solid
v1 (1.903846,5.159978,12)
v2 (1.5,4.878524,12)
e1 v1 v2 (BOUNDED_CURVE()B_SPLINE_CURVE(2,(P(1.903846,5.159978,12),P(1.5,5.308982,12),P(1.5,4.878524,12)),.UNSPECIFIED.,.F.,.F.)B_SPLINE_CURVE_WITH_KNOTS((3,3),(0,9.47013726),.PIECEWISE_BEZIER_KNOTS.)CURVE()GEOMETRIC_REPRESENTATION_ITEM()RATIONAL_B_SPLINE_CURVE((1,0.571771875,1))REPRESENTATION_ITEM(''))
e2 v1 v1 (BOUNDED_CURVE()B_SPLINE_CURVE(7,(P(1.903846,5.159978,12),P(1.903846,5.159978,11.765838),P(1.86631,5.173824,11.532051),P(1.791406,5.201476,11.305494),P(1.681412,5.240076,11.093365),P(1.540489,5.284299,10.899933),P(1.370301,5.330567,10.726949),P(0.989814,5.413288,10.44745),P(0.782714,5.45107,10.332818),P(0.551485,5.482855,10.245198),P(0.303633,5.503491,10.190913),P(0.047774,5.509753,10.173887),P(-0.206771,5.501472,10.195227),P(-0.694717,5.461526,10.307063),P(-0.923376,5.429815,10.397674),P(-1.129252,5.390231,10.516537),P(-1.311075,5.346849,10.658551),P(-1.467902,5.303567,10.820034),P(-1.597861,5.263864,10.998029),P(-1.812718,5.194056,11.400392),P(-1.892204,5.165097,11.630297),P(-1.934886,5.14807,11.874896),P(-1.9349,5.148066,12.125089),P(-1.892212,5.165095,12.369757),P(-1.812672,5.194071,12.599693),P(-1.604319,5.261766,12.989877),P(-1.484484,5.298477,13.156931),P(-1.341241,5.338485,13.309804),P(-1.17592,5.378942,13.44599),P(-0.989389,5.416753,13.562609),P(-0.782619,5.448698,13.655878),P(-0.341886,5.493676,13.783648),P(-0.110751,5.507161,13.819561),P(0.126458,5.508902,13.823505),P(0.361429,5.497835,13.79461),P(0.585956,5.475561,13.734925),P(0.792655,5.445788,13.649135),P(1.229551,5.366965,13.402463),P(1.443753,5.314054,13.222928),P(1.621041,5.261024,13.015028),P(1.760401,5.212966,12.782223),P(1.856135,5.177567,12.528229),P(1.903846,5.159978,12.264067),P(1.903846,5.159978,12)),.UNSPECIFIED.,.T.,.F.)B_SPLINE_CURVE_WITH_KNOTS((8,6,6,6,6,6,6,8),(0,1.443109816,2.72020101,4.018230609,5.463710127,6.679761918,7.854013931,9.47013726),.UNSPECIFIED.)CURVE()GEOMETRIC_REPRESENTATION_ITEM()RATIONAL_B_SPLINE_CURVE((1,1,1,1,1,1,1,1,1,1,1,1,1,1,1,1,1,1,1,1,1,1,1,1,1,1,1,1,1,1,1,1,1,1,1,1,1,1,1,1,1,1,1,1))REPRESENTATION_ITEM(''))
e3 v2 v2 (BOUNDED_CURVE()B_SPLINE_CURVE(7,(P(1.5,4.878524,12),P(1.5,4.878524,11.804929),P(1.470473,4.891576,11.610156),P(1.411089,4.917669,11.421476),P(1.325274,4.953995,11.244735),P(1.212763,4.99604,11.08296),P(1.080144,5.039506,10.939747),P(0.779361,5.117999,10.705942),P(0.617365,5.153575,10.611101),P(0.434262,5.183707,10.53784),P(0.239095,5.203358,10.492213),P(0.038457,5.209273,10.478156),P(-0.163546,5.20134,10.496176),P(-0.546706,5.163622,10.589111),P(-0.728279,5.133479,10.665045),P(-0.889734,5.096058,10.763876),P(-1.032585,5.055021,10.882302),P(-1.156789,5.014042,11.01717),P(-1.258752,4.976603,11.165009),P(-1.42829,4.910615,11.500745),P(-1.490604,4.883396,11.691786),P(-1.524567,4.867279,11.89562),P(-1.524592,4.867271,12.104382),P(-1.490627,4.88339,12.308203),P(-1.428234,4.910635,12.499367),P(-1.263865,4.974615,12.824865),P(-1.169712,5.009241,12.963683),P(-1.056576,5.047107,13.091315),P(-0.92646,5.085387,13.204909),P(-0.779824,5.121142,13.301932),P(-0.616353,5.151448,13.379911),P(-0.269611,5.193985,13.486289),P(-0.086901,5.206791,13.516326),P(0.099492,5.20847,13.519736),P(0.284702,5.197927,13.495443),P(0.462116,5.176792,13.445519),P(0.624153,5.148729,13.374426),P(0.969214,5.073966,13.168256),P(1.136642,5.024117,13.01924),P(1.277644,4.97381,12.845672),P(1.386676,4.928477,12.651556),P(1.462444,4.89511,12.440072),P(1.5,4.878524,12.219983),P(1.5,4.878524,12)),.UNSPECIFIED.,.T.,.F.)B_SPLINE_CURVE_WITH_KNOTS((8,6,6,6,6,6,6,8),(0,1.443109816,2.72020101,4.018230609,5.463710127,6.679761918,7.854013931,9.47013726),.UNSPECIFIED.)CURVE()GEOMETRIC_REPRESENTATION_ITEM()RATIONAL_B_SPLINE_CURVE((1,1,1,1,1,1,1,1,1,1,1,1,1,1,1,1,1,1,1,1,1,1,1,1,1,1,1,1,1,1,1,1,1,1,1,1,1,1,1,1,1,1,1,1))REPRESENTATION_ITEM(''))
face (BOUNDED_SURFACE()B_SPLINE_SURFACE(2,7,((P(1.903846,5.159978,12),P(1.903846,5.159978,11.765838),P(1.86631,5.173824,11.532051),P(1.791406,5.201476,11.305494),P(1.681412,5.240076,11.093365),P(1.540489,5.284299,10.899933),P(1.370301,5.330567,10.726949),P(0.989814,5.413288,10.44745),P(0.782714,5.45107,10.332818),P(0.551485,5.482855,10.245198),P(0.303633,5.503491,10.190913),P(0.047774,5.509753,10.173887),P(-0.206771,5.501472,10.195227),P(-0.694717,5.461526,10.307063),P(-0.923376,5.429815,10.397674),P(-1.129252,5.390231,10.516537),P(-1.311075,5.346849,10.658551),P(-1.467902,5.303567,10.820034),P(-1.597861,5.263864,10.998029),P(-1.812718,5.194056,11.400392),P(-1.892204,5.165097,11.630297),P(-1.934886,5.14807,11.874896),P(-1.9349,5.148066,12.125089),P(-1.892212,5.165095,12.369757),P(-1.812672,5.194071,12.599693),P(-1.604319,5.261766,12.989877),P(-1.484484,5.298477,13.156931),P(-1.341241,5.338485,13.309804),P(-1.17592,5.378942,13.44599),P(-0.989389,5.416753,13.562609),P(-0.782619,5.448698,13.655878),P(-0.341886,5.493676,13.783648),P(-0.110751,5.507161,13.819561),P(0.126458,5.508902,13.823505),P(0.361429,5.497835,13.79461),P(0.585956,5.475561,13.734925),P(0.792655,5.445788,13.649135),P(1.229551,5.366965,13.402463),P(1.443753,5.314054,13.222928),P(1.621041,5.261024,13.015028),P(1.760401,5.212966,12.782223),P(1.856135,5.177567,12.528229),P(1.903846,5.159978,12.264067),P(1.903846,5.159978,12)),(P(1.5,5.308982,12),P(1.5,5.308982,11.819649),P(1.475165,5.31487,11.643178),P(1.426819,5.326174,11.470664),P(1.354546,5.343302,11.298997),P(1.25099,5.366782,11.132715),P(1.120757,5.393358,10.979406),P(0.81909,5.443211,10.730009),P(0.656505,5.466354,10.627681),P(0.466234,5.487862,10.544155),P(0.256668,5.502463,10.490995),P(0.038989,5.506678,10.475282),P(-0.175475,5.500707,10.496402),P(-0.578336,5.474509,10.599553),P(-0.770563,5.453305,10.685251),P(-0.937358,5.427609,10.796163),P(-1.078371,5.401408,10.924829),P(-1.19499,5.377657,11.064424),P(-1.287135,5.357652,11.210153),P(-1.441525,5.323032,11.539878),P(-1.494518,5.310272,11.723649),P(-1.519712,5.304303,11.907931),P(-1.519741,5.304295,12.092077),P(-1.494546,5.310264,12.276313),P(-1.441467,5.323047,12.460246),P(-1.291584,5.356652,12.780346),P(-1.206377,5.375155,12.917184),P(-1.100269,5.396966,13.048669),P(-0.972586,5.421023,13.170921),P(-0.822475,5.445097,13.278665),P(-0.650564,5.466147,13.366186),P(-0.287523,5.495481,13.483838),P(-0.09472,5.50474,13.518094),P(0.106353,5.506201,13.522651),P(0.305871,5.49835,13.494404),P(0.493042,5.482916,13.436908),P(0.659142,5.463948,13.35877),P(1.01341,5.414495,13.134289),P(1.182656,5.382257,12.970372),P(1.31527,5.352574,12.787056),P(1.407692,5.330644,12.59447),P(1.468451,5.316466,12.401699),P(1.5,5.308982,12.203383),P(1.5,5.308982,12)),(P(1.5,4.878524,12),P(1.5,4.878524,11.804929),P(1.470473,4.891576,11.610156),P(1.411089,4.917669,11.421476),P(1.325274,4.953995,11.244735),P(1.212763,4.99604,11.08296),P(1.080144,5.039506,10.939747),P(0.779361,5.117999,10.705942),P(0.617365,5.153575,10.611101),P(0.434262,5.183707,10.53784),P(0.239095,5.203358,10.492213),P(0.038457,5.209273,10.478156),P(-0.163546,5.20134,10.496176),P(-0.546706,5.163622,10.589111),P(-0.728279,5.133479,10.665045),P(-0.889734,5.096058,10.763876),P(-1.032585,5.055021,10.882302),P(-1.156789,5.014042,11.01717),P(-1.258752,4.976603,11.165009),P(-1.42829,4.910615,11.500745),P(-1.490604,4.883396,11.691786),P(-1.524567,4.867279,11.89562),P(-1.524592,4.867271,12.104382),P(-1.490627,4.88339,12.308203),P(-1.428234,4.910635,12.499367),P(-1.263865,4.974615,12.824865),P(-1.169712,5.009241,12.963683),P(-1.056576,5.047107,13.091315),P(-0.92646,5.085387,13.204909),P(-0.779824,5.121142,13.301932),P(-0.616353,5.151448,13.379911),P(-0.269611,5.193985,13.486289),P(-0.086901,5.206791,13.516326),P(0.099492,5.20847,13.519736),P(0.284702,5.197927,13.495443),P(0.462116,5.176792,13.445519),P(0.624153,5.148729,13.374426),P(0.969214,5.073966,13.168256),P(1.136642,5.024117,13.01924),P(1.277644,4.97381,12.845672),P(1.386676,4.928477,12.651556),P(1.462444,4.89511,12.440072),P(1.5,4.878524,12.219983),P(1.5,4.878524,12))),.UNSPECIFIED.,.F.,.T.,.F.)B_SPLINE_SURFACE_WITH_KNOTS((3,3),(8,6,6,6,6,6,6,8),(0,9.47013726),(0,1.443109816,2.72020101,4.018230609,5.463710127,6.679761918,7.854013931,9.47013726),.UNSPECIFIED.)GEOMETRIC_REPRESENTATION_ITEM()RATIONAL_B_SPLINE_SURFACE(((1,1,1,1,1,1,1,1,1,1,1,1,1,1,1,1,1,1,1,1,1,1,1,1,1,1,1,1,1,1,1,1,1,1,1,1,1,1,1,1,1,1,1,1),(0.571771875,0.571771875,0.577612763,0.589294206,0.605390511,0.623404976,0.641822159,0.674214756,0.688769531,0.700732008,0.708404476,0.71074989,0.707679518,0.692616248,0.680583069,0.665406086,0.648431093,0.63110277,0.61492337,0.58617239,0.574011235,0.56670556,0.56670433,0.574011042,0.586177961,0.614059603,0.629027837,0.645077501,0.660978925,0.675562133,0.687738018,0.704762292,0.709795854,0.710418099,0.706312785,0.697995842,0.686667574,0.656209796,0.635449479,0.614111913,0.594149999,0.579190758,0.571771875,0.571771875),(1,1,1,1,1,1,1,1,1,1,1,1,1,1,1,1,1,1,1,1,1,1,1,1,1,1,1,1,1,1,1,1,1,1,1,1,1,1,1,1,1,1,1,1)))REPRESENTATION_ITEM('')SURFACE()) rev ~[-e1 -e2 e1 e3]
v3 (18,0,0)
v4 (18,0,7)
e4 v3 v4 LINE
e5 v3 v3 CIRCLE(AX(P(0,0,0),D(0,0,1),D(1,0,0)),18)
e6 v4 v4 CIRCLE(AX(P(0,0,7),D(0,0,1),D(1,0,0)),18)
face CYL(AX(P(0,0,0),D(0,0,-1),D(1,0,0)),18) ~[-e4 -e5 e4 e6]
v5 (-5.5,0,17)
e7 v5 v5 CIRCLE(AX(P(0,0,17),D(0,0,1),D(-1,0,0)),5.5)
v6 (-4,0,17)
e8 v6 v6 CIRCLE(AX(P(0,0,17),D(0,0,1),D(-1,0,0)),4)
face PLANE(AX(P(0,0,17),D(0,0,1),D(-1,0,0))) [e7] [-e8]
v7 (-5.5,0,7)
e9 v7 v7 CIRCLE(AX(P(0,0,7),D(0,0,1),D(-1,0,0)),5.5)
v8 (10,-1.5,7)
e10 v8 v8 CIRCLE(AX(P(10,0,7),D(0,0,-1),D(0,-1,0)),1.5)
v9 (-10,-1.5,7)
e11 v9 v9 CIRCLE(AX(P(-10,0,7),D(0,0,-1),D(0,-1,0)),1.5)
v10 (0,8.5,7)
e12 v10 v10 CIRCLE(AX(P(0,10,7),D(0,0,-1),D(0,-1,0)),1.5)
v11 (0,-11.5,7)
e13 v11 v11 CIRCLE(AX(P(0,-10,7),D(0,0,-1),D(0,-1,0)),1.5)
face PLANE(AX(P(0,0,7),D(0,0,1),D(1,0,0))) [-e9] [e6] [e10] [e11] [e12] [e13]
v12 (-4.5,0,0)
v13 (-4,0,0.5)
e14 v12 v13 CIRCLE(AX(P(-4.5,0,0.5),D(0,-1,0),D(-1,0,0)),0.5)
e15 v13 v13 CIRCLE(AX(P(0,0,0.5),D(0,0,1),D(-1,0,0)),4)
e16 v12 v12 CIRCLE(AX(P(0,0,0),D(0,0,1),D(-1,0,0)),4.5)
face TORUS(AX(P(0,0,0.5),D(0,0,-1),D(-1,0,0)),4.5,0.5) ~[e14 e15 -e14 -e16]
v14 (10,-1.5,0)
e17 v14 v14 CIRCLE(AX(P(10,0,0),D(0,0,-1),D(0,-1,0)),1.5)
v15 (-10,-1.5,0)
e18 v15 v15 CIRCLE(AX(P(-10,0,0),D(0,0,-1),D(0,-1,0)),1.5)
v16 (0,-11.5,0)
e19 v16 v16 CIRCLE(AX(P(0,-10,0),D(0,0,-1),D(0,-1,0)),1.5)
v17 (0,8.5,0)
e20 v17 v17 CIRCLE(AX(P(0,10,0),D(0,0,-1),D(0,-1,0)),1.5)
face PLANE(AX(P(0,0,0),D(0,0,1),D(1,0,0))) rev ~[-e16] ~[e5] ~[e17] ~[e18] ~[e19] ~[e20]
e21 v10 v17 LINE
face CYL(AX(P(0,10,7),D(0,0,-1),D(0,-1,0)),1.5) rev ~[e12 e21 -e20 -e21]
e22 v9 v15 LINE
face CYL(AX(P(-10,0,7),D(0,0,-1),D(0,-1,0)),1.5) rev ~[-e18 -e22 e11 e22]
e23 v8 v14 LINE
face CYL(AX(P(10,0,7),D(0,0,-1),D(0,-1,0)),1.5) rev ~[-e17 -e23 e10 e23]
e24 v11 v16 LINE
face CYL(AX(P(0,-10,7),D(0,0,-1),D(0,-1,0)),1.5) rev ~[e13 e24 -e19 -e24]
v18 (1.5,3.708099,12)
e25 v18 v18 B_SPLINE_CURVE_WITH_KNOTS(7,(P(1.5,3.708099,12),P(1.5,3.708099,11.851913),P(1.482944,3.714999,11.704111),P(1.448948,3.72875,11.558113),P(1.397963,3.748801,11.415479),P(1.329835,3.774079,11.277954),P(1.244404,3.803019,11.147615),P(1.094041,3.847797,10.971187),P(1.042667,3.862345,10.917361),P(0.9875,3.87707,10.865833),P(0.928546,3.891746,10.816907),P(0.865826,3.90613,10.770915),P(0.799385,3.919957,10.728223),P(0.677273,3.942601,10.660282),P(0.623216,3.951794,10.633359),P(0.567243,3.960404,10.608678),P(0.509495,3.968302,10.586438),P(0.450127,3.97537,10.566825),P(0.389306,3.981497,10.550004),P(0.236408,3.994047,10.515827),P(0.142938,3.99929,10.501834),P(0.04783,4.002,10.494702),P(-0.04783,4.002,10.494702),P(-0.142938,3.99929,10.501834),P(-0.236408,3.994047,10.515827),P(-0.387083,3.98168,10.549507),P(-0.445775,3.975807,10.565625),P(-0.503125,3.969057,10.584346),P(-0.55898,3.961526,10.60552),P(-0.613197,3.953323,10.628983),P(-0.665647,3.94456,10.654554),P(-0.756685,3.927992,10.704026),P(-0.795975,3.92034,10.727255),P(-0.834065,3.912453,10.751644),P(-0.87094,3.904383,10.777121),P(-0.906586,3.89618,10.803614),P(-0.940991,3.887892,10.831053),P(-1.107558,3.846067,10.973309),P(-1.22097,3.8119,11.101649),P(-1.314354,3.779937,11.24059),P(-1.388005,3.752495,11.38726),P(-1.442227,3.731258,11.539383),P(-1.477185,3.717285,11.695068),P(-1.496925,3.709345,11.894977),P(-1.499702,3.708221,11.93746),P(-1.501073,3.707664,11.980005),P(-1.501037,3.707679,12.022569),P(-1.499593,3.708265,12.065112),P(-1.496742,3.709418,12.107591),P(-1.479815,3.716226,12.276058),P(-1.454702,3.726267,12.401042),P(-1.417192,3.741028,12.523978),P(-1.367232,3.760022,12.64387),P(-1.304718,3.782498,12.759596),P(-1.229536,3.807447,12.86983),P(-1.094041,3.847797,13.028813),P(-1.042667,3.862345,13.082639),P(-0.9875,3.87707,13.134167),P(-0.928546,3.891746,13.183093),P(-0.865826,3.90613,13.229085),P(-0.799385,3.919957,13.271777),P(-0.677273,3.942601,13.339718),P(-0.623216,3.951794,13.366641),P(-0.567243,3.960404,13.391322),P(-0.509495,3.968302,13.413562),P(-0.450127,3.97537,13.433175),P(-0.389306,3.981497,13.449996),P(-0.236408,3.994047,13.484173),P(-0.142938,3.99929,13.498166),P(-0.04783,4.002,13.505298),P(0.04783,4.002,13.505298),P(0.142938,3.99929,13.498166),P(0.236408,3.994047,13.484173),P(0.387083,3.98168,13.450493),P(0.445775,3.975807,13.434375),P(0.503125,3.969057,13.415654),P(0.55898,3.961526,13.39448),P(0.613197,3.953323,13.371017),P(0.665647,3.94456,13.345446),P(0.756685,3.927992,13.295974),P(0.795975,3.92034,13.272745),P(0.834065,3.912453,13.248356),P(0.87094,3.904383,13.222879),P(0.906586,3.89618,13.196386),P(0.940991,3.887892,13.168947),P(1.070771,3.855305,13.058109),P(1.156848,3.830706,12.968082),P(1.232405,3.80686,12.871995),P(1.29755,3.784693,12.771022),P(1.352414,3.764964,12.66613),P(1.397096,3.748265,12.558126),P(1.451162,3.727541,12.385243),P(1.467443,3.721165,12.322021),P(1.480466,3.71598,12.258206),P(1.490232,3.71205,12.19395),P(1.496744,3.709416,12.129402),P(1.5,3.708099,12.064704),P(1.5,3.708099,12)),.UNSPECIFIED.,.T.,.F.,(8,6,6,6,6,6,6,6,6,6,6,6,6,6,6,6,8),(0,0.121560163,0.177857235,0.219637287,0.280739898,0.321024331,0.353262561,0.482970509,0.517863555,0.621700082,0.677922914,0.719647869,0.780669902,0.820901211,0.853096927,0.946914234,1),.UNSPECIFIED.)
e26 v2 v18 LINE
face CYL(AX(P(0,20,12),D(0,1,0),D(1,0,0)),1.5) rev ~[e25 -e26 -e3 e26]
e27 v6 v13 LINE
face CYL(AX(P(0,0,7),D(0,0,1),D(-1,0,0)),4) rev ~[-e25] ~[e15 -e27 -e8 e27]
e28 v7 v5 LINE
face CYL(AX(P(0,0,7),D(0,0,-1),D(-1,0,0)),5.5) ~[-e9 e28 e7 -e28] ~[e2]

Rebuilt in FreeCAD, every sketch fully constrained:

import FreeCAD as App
import Part
import Sketcher
from FreeCAD import Vector
Q = App.Units.Quantity


def edges_at(feature, points):
    """Names of the edges that pass closest to the given points."""
    edges = feature.Shape.Edges
    near = lambda p: min(range(len(edges)), key=lambda i: edges[i].distToShape(Part.Vertex(*p))[0])
    return sorted({f"Edge{near(p) + 1}" for p in points})

doc = App.newDocument("Part")
body = doc.addObject("PartDesign::Body", "Body")

# Sketch on XY plane
sketch1 = body.newObject("Sketcher::SketchObject", "Sketch")
sketch1.AttachmentSupport = (doc.getObject("XY_Plane"), [""])
sketch1.MapMode = "FlatFace"
sketch1.addGeometry(Part.Circle(Vector(0, 0, 0), Vector(0, 0, 1), 18), False)
sketch1.addConstraint(Sketcher.Constraint("Coincident", 0, 3, -1, 1))
sketch1.addConstraint(Sketcher.Constraint("Diameter", 0, Q("36 mm")))
pad1 = body.newObject("PartDesign::Pad", "Pad")
pad1.Profile = sketch1
pad1.Length = 7

# Sketch on XY plane
sketch2 = body.newObject("Sketcher::SketchObject", "Sketch001")
sketch2.AttachmentSupport = (doc.getObject("XY_Plane"), [""])
sketch2.MapMode = "FlatFace"
sketch2.AttachmentOffset = App.Placement(Vector(0, 0, 7), App.Rotation())
sketch2.addGeometry(Part.Circle(Vector(-10, 0, 0), Vector(0, 0, 1), 1.5), False)
sketch2.addGeometry(Part.Circle(Vector(0, -10, 0), Vector(0, 0, 1), 1.5), False)
sketch2.addGeometry(Part.Circle(Vector(0, 10, 0), Vector(0, 0, 1), 1.5), False)
sketch2.addGeometry(Part.Circle(Vector(10, 0, 0), Vector(0, 0, 1), 1.5), False)
sketch2.addConstraint(Sketcher.Constraint("Equal", 0, 1))
sketch2.addConstraint(Sketcher.Constraint("Equal", 1, 2))
sketch2.addConstraint(Sketcher.Constraint("Equal", 2, 3))
sketch2.addConstraint(Sketcher.Constraint("Symmetric", 1, 3, 2, 3, -1, 1))
sketch2.addConstraint(Sketcher.Constraint("Symmetric", 0, 3, 3, 3, -1, 1))
sketch2.addConstraint(Sketcher.Constraint("PointOnObject", 0, 3, -1))
sketch2.addConstraint(Sketcher.Constraint("PointOnObject", 1, 3, -2))
sketch2.addConstraint(Sketcher.Constraint("Diameter", 0, Q("3 mm")))
sketch2.addConstraint(Sketcher.Constraint("DistanceX", 0, 3, -1, 1, Q("10 mm")))
sketch2.addConstraint(Sketcher.Constraint("DistanceY", 1, 3, -1, 1, Q("10 mm")))
doc.recompute()
hole = body.newObject("PartDesign::Hole", "Hole")
hole.Profile = sketch2
hole.ThreadType = "None"
hole.Diameter = 3
hole.DepthType = "Dimension"
hole.Depth = 300
hole.DrillPoint = "Angled"
hole.DrillPointAngle = 118

# Sketch on XY plane
sketch3 = body.newObject("Sketcher::SketchObject", "Sketch002")
sketch3.AttachmentSupport = (doc.getObject("XY_Plane"), [""])
sketch3.MapMode = "FlatFace"
sketch3.AttachmentOffset = App.Placement(Vector(0, 0, 7), App.Rotation())
sketch3.addGeometry(Part.Circle(Vector(0, 0, 0), Vector(0, 0, 1), 5.5), False)
sketch3.addGeometry(Part.Circle(Vector(0, 0, 0), Vector(0, 0, 1), 4), False)
sketch3.addConstraint(Sketcher.Constraint("Coincident", 0, 3, -1, 1))
sketch3.addConstraint(Sketcher.Constraint("Coincident", 1, 3, -1, 1))
sketch3.addConstraint(Sketcher.Constraint("Diameter", 1, Q("8 mm")))
sketch3.addConstraint(Sketcher.Constraint("Diameter", 0, Q("11 mm")))
pad2 = body.newObject("PartDesign::Pad", "Pad001")
pad2.Profile = sketch3
pad2.Length = 10

# Sketch on XZ plane
sketch4 = body.newObject("Sketcher::SketchObject", "Sketch003")
sketch4.AttachmentSupport = (doc.getObject("XZ_Plane"), [""])
sketch4.MapMode = "FlatFace"
sketch4.AttachmentOffset = App.Placement(Vector(0, 0, -20), App.Rotation())
sketch4.addGeometry(Part.Circle(Vector(0, 12, 0), Vector(0, 0, 1), 1.5), False)
sketch4.addConstraint(Sketcher.Constraint("PointOnObject", 0, 3, -2))
sketch4.addConstraint(Sketcher.Constraint("Diameter", 0, Q("3 mm")))
sketch4.addConstraint(Sketcher.Constraint("DistanceY", -1, 1, 0, 3, Q("12 mm")))
pocket1 = body.newObject("PartDesign::Pocket", "Pocket")
pocket1.Profile = sketch4
pocket1.Length = 18
pocket1.Reversed = True
doc.recompute()

fillet = body.newObject("PartDesign::Fillet", "Fillet")
fillet.Base = (pocket1, edges_at(pocket1, [(-1.5, 5.292, 12)]))
fillet.Radius = 0.3

# Sketch on XY plane
sketch5 = body.newObject("Sketcher::SketchObject", "Sketch004")
sketch5.AttachmentSupport = (doc.getObject("XY_Plane"), [""])
sketch5.MapMode = "FlatFace"
sketch5.AttachmentOffset = App.Placement(Vector(0, 0, 7), App.Rotation())
sketch5.addGeometry(Part.Circle(Vector(0, 0, 0), Vector(0, 0, 1), 4), False)
sketch5.addConstraint(Sketcher.Constraint("Coincident", 0, 3, -1, 1))
sketch5.addConstraint(Sketcher.Constraint("Diameter", 0, Q("8 mm")))
pocket2 = body.newObject("PartDesign::Pocket", "Pocket001")
pocket2.Profile = sketch5
pocket2.Length = 19
doc.recompute()

fillet2 = body.newObject("PartDesign::Fillet", "Fillet001")
fillet2.Base = (pocket2, edges_at(pocket2, [(3.729, 1.446, 0)]))
fillet2.Radius = 0.5

doc.recompute()
